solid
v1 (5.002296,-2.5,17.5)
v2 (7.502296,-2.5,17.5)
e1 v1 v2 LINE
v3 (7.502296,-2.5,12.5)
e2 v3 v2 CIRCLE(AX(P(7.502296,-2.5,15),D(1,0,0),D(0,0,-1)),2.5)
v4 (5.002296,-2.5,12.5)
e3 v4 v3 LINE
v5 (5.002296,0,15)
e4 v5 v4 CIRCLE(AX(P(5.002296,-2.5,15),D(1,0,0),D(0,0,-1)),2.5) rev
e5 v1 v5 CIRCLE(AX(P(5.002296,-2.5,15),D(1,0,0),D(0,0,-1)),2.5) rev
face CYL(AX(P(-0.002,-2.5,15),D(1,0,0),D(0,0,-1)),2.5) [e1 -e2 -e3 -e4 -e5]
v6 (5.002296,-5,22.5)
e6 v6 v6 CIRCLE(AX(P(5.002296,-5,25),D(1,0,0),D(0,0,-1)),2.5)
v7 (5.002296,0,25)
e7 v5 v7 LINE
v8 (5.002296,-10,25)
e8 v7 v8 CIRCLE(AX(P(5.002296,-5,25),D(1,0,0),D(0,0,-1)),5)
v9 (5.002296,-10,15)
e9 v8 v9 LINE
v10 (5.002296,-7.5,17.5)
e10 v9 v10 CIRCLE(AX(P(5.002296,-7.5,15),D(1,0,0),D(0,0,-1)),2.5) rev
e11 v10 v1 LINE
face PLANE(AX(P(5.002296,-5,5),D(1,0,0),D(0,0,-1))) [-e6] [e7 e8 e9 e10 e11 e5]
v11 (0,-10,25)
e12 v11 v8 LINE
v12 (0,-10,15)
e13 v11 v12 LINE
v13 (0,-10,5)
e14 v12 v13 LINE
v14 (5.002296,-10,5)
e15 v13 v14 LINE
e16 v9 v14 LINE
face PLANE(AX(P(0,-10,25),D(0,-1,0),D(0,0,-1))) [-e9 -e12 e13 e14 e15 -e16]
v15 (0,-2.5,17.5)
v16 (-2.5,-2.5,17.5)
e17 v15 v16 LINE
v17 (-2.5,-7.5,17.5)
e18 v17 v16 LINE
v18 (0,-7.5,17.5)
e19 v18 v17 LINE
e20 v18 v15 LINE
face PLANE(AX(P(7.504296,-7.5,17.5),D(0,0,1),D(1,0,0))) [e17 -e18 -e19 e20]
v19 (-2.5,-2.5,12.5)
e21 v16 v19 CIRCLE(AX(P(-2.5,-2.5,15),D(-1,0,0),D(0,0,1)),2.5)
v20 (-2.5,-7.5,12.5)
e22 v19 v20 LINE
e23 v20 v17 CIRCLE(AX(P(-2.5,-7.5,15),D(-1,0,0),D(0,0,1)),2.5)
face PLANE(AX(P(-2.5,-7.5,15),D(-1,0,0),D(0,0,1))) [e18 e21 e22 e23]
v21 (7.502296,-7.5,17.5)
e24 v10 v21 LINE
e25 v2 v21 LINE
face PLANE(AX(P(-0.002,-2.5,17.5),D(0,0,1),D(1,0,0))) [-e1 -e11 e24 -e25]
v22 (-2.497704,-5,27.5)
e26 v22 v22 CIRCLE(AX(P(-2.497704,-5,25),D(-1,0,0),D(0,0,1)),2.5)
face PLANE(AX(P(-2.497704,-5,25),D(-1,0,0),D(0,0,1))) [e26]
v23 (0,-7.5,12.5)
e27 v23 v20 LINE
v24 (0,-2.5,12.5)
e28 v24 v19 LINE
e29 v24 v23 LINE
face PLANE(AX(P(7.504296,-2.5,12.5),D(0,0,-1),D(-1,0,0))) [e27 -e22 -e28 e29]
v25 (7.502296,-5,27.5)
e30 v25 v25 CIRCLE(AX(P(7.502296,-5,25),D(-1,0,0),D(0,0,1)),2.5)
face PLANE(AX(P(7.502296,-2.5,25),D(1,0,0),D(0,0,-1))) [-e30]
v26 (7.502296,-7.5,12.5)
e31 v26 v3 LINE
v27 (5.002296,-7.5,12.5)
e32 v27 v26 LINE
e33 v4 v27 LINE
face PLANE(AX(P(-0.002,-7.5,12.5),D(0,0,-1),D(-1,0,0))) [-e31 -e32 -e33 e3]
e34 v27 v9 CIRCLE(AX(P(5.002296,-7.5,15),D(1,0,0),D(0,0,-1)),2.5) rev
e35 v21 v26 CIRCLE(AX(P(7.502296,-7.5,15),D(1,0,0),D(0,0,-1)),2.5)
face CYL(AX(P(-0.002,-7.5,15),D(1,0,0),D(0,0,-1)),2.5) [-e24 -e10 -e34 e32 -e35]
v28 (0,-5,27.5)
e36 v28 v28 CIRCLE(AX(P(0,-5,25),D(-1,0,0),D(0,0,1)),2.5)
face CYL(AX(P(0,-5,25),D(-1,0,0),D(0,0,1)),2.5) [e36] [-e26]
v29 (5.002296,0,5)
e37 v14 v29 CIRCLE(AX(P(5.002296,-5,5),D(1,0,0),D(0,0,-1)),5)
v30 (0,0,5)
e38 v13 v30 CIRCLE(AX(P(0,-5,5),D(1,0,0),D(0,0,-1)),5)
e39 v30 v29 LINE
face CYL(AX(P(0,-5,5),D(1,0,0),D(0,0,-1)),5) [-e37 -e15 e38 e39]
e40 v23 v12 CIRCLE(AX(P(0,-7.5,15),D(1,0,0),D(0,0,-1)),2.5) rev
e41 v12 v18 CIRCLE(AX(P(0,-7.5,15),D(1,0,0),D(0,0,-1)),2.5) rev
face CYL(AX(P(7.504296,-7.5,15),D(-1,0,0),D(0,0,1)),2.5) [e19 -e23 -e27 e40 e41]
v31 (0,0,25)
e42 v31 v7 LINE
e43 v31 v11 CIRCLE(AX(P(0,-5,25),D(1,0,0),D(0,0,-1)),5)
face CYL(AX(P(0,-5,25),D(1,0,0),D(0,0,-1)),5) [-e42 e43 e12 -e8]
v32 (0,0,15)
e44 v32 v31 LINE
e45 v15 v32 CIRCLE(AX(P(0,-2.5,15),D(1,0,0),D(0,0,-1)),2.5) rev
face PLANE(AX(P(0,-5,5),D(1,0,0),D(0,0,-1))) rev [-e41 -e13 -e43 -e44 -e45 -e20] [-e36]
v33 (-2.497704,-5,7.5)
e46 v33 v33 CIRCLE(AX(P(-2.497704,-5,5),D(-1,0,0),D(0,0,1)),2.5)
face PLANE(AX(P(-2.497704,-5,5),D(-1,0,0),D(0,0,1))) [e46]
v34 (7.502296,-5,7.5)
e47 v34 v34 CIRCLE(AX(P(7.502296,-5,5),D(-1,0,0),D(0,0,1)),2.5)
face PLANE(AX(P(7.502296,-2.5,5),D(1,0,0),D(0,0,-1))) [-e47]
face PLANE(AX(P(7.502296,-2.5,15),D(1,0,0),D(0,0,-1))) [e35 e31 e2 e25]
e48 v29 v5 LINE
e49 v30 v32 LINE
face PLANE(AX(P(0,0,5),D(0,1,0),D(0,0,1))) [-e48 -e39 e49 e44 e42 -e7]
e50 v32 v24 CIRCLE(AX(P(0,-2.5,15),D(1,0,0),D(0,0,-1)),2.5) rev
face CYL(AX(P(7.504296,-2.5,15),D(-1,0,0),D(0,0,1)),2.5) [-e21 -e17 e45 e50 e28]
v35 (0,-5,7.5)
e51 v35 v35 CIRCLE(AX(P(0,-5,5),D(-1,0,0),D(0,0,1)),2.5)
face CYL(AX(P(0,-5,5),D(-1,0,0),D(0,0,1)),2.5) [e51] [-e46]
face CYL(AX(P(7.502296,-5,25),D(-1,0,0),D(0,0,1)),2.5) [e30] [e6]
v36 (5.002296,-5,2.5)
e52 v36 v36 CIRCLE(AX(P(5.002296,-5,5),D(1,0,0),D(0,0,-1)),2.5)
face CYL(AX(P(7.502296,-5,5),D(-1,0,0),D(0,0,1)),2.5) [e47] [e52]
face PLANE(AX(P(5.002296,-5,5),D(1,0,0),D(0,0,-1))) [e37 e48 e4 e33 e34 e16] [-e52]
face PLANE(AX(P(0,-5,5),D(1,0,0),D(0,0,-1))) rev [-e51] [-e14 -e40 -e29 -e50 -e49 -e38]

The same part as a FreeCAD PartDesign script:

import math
import FreeCAD as App
import Part
import Sketcher

V = App.Vector

doc = App.newDocument("Part")
body = doc.addObject("PartDesign::Body", "Body")

# Sketch on YZ plane
sketch1 = body.newObject("Sketcher::SketchObject", "Sketch")
sketch1.AttachmentSupport = (doc.getObject("YZ_Plane"), [""])
sketch1.MapMode = "FlatFace"
sketch1.AttachmentOffset = App.Placement(V(0, 0, 5.002296), App.Rotation())
sketch1.addGeometry([
    Part.LineSegment(V(0, 5, 0), V(0, 25, 0)),
    Part.ArcOfCircle(Part.Circle(V(-5, 25, 0), V(0, 0, 1), 5), math.radians(0), math.radians(180)),
    Part.LineSegment(V(-10, 25, 0), V(-10, 5, 0)),
    Part.ArcOfCircle(Part.Circle(V(-5, 5, 0), V(0, 0, 1), 5), math.radians(180), math.radians(360)),
], False)
sketch1.addConstraint([
    Sketcher.Constraint("Tangent", 0, 2, 1, 1),
    Sketcher.Constraint("Tangent", 1, 2, 2, 1),
    Sketcher.Constraint("Tangent", 2, 2, 3, 1),
    Sketcher.Constraint("Tangent", 3, 2, 0, 1),
    Sketcher.Constraint("Vertical", 0),
    Sketcher.Constraint("Vertical", 2),
    Sketcher.Constraint("PointOnObject", 0, 2, -2),
    Sketcher.Constraint("Radius", 1, 5.0),
    Sketcher.Constraint("DistanceY", 0, 1, 0, 2, 20.0),
    Sketcher.Constraint("DistanceY", -1, 1, 1, 3, 25.0),
])
pad1 = body.newObject("PartDesign::Pad", "Pad")
pad1.Profile = sketch1
pad1.Length = 5.002296
pad1.Reversed = True

# Sketch on YZ plane
sketch2 = body.newObject("Sketcher::SketchObject", "Sketch001")
sketch2.AttachmentSupport = (doc.getObject("YZ_Plane"), [""])
sketch2.MapMode = "FlatFace"
sketch2.AttachmentOffset = App.Placement(V(0, 0, 7.502296), App.Rotation())
sketch2.addGeometry([
    Part.LineSegment(V(-2.5, 17.5, 0), V(-7.5, 17.5, 0)),
    Part.ArcOfCircle(Part.Circle(V(-7.5, 15, 0), V(0, 0, 1), 2.5), math.radians(90), math.radians(270)),
    Part.LineSegment(V(-7.5, 12.5, 0), V(-2.5, 12.5, 0)),
    Part.ArcOfCircle(Part.Circle(V(-2.5, 15, 0), V(0, 0, 1), 2.5), math.radians(-90), math.radians(90)),
], False)
sketch2.addConstraint([
    Sketcher.Constraint("Tangent", 0, 2, 1, 1),
    Sketcher.Constraint("Tangent", 1, 2, 2, 1),
    Sketcher.Constraint("Tangent", 2, 2, 3, 1),
    Sketcher.Constraint("Tangent", 3, 2, 0, 1),
    Sketcher.Constraint("Horizontal", 0),
    Sketcher.Constraint("Horizontal", 2),
    Sketcher.Constraint("Radius", 1, 2.5),
    Sketcher.Constraint("DistanceX", 0, 2, 0, 1, 5.0),
    Sketcher.Constraint("DistanceY", -1, 1, 1, 3, 15.0),
    Sketcher.Constraint("DistanceX", 1, 3, -1, 1, 7.5),
])
pad2 = body.newObject("PartDesign::Pad", "Pad001")
pad2.Profile = sketch2
pad2.Type = "UpToFirst"
pad2.Reversed = True

# Sketch on YZ plane
sketch3 = body.newObject("Sketcher::SketchObject", "Sketch002")
sketch3.AttachmentSupport = (doc.getObject("YZ_Plane"), [""])
sketch3.MapMode = "FlatFace"
sketch3.AttachmentOffset = App.Placement(V(0, 0, -2.5), App.Rotation())
sketch3.addGeometry([
    Part.LineSegment(V(-7.5, 17.5, 0), V(-2.5, 17.5, 0)),
    Part.ArcOfCircle(Part.Circle(V(-2.5, 15, 0), V(0, 0, 1), 2.5), math.radians(-90), math.radians(90)),
    Part.LineSegment(V(-2.5, 12.5, 0), V(-7.5, 12.5, 0)),
    Part.ArcOfCircle(Part.Circle(V(-7.5, 15, 0), V(0, 0, 1), 2.5), math.radians(90), math.radians(270)),
], False)
sketch3.addConstraint([
    Sketcher.Constraint("Tangent", 0, 2, 1, 2),
    Sketcher.Constraint("Tangent", 1, 1, 2, 1),
    Sketcher.Constraint("Tangent", 2, 2, 3, 2),
    Sketcher.Constraint("Tangent", 3, 1, 0, 1),
    Sketcher.Constraint("Horizontal", 0),
    Sketcher.Constraint("Horizontal", 2),
    Sketcher.Constraint("Radius", 1, 2.5),
    Sketcher.Constraint("DistanceX", 0, 1, 0, 2, 5.0),
    Sketcher.Constraint("DistanceY", -1, 1, 1, 3, 15.0),
    Sketcher.Constraint("DistanceX", 1, 3, -1, 1, 2.5),
])
pad3 = body.newObject("PartDesign::Pad", "Pad002")
pad3.Profile = sketch3
pad3.Type = "UpToFirst"

# Sketch on XY plane
sketch4 = body.newObject("Sketcher::SketchObject", "Sketch003")
sketch4.AttachmentSupport = (doc.getObject("XY_Plane"), [""])
sketch4.MapMode = "FlatFace"
sketch4.AttachmentOffset = App.Placement(V(0, 0, 5), App.Rotation())
sketch4.addGeometry([
    Part.LineSegment(V(0, -2.5, 0), V(0, -5, 0)),
    Part.LineSegment(V(0, -5, 0), V(-2.5, -5, 0)),
    Part.LineSegment(V(-2.5, -5, 0), V(-2.5, -2.5, 0)),
    Part.LineSegment(V(-2.5, -2.5, 0), V(0, -2.5, 0)),
], False)
sketch4.addGeometry(Part.LineSegment(V(0, -5, 0), V(-2.5, -5, 0)), True)  # axis
sketch4.addConstraint([
    Sketcher.Constraint("Coincident", 0, 2, 1, 1),
    Sketcher.Constraint("Coincident", 1, 2, 2, 1),
    Sketcher.Constraint("Coincident", 2, 2, 3, 1),
    Sketcher.Constraint("Coincident", 3, 2, 0, 1),
    Sketcher.Constraint("Vertical", 0),
    Sketcher.Constraint("Horizontal", 1),
    Sketcher.Constraint("Vertical", 2),
    Sketcher.Constraint("Horizontal", 3),
    Sketcher.Constraint("Horizontal", 4),
    Sketcher.Constraint("Coincident", 4, 1, 0, 2),
    Sketcher.Constraint("PointOnObject", 0, 2, -2),
    Sketcher.Constraint("Vertical", 2, 2, 4, 2),
    Sketcher.Constraint("DistanceY", 0, 2, 0, 1, 2.5),
    Sketcher.Constraint("DistanceY", 0, 2, -1, 1, 5.0),
    Sketcher.Constraint("DistanceX", 1, 2, 1, 1, 2.497704),
])
revolution = body.newObject("PartDesign::Revolution", "Revolution")
revolution.Profile = sketch4
revolution.ReferenceAxis = (sketch4, ["Axis0"])
revolution.Angle = 360

# Sketch on XY plane
sketch5 = body.newObject("Sketcher::SketchObject", "Sketch004")
sketch5.AttachmentSupport = (doc.getObject("XY_Plane"), [""])
sketch5.MapMode = "FlatFace"
sketch5.AttachmentOffset = App.Placement(V(0, 0, 5), App.Rotation())
sketch5.addGeometry([
    Part.LineSegment(V(7.5, -2.5, 0), V(7.5, -5, 0)),
    Part.LineSegment(V(7.5, -5, 0), V(5, -5, 0)),
    Part.LineSegment(V(5, -5, 0), V(5, -2.5, 0)),
    Part.LineSegment(V(5, -2.5, 0), V(7.5, -2.5, 0)),
], False)
sketch5.addGeometry(Part.LineSegment(V(7.5, -5, 0), V(5, -5, 0)), True)  # axis
sketch5.addConstraint([
    Sketcher.Constraint("Coincident", 0, 2, 1, 1),
    Sketcher.Constraint("Coincident", 1, 2, 2, 1),
    Sketcher.Constraint("Coincident", 2, 2, 3, 1),
    Sketcher.Constraint("Coincident", 3, 2, 0, 1),
    Sketcher.Constraint("Vertical", 0),
    Sketcher.Constraint("Horizontal", 1),
    Sketcher.Constraint("Vertical", 2),
    Sketcher.Constraint("Horizontal", 3),
    Sketcher.Constraint("Horizontal", 4),
    Sketcher.Constraint("Coincident", 4, 1, 0, 2),
    Sketcher.Constraint("Vertical", 2, 2, 4, 2),
    Sketcher.Constraint("Equal", 4, 0),
    Sketcher.Constraint("DistanceX", 1, 2, 1, 1, 2.5),
    Sketcher.Constraint("DistanceY", 0, 2, -1, 1, 5.0),
    Sketcher.Constraint("DistanceX", -1, 1, 0, 2, 7.502296),
])
revolution2 = body.newObject("PartDesign::Revolution", "Revolution001")
revolution2.Profile = sketch5
revolution2.ReferenceAxis = (sketch5, ["Axis0"])
revolution2.Angle = 360

# Sketch on XY plane
sketch6 = body.newObject("Sketcher::SketchObject", "Sketch005")
sketch6.AttachmentSupport = (doc.getObject("XY_Plane"), [""])
sketch6.MapMode = "FlatFace"
sketch6.AttachmentOffset = App.Placement(V(0, 0, 25), App.Rotation())
sketch6.addGeometry([
    Part.LineSegment(V(7.5, -2.5, 0), V(7.5, -5, 0)),
    Part.LineSegment(V(7.5, -5, 0), V(5, -5, 0)),
    Part.LineSegment(V(5, -5, 0), V(5, -2.5, 0)),
    Part.LineSegment(V(5, -2.5, 0), V(7.5, -2.5, 0)),
], False)
sketch6.addGeometry(Part.LineSegment(V(7.5, -5, 0), V(5, -5, 0)), True)  # axis
sketch6.addConstraint([
    Sketcher.Constraint("Coincident", 0, 2, 1, 1),
    Sketcher.Constraint("Coincident", 1, 2, 2, 1),
    Sketcher.Constraint("Coincident", 2, 2, 3, 1),
    Sketcher.Constraint("Coincident", 3, 2, 0, 1),
    Sketcher.Constraint("Vertical", 0),
    Sketcher.Constraint("Horizontal", 1),
    Sketcher.Constraint("Vertical", 2),
    Sketcher.Constraint("Horizontal", 3),
    Sketcher.Constraint("Horizontal", 4),
    Sketcher.Constraint("Coincident", 4, 1, 0, 2),
    Sketcher.Constraint("Vertical", 2, 2, 4, 2),
    Sketcher.Constraint("Equal", 4, 0),
    Sketcher.Constraint("DistanceX", 1, 2, 1, 1, 2.5),
    Sketcher.Constraint("DistanceY", 0, 2, -1, 1, 5.0),
    Sketcher.Constraint("DistanceX", -1, 1, 0, 2, 7.502296),
])
revolution3 = body.newObject("PartDesign::Revolution", "Revolution002")
revolution3.Profile = sketch6
revolution3.ReferenceAxis = (sketch6, ["Axis0"])
revolution3.Angle = 360

# Sketch on XY plane
sketch7 = body.newObject("Sketcher::SketchObject", "Sketch006")
sketch7.AttachmentSupport = (doc.getObject("XY_Plane"), [""])
sketch7.MapMode = "FlatFace"
sketch7.AttachmentOffset = App.Placement(V(0, 0, 25), App.Rotation())
sketch7.addGeometry([
    Part.LineSegment(V(0, -2.5, 0), V(0, -5, 0)),
    Part.LineSegment(V(0, -5, 0), V(-2.5, -5, 0)),
    Part.LineSegment(V(-2.5, -5, 0), V(-2.5, -2.5, 0)),
    Part.LineSegment(V(-2.5, -2.5, 0), V(0, -2.5, 0)),
], False)
sketch7.addGeometry(Part.LineSegment(V(0, -5, 0), V(-2.5, -5, 0)), True)  # axis
sketch7.addConstraint([
    Sketcher.Constraint("Coincident", 0, 2, 1, 1),
    Sketcher.Constraint("Coincident", 1, 2, 2, 1),
    Sketcher.Constraint("Coincident", 2, 2, 3, 1),
    Sketcher.Constraint("Coincident", 3, 2, 0, 1),
    Sketcher.Constraint("Vertical", 0),
    Sketcher.Constraint("Horizontal", 1),
    Sketcher.Constraint("Vertical", 2),
    Sketcher.Constraint("Horizontal", 3),
    Sketcher.Constraint("Horizontal", 4),
    Sketcher.Constraint("Coincident", 4, 1, 0, 2),
    Sketcher.Constraint("PointOnObject", 0, 2, -2),
    Sketcher.Constraint("Vertical", 2, 2, 4, 2),
    Sketcher.Constraint("DistanceY", 0, 2, 0, 1, 2.5),
    Sketcher.Constraint("DistanceY", 0, 2, -1, 1, 5.0),
    Sketcher.Constraint("DistanceX", 1, 2, 1, 1, 2.497704),
])
revolution4 = body.newObject("PartDesign::Revolution", "Revolution003")
revolution4.Profile = sketch7
revolution4.ReferenceAxis = (sketch7, ["Axis0"])
revolution4.Angle = 360

doc.recompute()
